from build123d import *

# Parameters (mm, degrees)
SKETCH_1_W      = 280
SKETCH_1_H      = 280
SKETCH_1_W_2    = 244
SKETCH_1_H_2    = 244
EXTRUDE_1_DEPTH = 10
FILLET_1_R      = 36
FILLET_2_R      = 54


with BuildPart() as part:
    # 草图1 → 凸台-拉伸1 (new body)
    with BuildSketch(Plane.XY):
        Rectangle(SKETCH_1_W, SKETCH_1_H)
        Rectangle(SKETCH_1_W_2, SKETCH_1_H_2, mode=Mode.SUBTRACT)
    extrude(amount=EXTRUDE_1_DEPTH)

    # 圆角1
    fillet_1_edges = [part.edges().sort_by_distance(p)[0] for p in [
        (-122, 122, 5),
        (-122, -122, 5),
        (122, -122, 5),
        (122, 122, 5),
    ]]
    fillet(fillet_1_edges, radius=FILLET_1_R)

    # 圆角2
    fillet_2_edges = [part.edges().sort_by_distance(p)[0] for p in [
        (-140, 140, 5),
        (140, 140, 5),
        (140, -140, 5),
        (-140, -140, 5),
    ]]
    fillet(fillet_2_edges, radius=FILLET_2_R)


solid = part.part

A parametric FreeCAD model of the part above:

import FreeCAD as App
import Part
import Sketcher

V = App.Vector


def edges_at(feature, points):
    """Names of the edges that pass closest to the given points."""
    edges = feature.Shape.Edges
    near = lambda p: min(range(len(edges)), key=lambda i: edges[i].distToShape(Part.Vertex(*p))[0])
    return sorted({f"Edge{near(p) + 1}" for p in points})


def add_polygon(sketch, points):
    """Adds a closed chain of lines whose ends are joined by coincident constraints."""
    first, n = sketch.GeometryCount, len(points)
    for a, b in zip(points, points[1:] + points[:1]):
        sketch.addGeometry(Part.LineSegment(App.Vector(*a, 0), App.Vector(*b, 0)), False)
    for i in range(n):
        sketch.addConstraint(Sketcher.Constraint("Coincident", first + i, 2, first + (i + 1) % n, 1))

doc = App.newDocument("Part")
body = doc.addObject("PartDesign::Body", "Body")

# Sketch on XY plane
sketch1 = body.newObject("Sketcher::SketchObject", "Sketch")
sketch1.AttachmentSupport = (doc.getObject("XY_Plane"), [""])
sketch1.MapMode = "FlatFace"
add_polygon(sketch1, [(-140, 140), (-140, -140), (140, -140), (140, 140)])  # lines 0-3
add_polygon(sketch1, [(122, -122), (-122, -122), (-122, 122), (122, 122)])  # lines 4-7
sketch1.addConstraint([
    Sketcher.Constraint("Vertical", 0),
    Sketcher.Constraint("Horizontal", 1),
    Sketcher.Constraint("Vertical", 2),
    Sketcher.Constraint("Horizontal", 3),
    Sketcher.Constraint("Horizontal", 4),
    Sketcher.Constraint("Vertical", 5),
    Sketcher.Constraint("Horizontal", 6),
    Sketcher.Constraint("Vertical", 7),
    Sketcher.Constraint("Symmetric", 0, 2, 2, 2, -1, 1),
    Sketcher.Constraint("Symmetric", 4, 2, 6, 2, -1, 1),
    Sketcher.Constraint("Equal", 3, 0),
    Sketcher.Constraint("Equal", 6, 5),
    Sketcher.Constraint("DistanceX", 1, 1, 1, 2, 280.0),
    Sketcher.Constraint("DistanceX", 4, 2, 4, 1, 244.0),
])
pad1 = body.newObject("PartDesign::Pad", "Pad")
pad1.Profile = sketch1
pad1.Length = 10
doc.recompute()

fillet = body.newObject("PartDesign::Fillet", "Fillet")
fillet.Base = (pad1, edges_at(pad1, [
    (-122, 122, 5),
    (-122, -122, 5),
    (122, -122, 5),
    (122, 122, 5),
]))
fillet.Radius = 36
doc.recompute()

fillet2 = body.newObject("PartDesign::Fillet", "Fillet001")
fillet2.Base = (fillet, edges_at(fillet, [
    (-140, 140, 5),
    (140, 140, 5),
    (140, -140, 5),
    (-140, -140, 5),
]))
fillet2.Radius = 54

doc.recompute()
